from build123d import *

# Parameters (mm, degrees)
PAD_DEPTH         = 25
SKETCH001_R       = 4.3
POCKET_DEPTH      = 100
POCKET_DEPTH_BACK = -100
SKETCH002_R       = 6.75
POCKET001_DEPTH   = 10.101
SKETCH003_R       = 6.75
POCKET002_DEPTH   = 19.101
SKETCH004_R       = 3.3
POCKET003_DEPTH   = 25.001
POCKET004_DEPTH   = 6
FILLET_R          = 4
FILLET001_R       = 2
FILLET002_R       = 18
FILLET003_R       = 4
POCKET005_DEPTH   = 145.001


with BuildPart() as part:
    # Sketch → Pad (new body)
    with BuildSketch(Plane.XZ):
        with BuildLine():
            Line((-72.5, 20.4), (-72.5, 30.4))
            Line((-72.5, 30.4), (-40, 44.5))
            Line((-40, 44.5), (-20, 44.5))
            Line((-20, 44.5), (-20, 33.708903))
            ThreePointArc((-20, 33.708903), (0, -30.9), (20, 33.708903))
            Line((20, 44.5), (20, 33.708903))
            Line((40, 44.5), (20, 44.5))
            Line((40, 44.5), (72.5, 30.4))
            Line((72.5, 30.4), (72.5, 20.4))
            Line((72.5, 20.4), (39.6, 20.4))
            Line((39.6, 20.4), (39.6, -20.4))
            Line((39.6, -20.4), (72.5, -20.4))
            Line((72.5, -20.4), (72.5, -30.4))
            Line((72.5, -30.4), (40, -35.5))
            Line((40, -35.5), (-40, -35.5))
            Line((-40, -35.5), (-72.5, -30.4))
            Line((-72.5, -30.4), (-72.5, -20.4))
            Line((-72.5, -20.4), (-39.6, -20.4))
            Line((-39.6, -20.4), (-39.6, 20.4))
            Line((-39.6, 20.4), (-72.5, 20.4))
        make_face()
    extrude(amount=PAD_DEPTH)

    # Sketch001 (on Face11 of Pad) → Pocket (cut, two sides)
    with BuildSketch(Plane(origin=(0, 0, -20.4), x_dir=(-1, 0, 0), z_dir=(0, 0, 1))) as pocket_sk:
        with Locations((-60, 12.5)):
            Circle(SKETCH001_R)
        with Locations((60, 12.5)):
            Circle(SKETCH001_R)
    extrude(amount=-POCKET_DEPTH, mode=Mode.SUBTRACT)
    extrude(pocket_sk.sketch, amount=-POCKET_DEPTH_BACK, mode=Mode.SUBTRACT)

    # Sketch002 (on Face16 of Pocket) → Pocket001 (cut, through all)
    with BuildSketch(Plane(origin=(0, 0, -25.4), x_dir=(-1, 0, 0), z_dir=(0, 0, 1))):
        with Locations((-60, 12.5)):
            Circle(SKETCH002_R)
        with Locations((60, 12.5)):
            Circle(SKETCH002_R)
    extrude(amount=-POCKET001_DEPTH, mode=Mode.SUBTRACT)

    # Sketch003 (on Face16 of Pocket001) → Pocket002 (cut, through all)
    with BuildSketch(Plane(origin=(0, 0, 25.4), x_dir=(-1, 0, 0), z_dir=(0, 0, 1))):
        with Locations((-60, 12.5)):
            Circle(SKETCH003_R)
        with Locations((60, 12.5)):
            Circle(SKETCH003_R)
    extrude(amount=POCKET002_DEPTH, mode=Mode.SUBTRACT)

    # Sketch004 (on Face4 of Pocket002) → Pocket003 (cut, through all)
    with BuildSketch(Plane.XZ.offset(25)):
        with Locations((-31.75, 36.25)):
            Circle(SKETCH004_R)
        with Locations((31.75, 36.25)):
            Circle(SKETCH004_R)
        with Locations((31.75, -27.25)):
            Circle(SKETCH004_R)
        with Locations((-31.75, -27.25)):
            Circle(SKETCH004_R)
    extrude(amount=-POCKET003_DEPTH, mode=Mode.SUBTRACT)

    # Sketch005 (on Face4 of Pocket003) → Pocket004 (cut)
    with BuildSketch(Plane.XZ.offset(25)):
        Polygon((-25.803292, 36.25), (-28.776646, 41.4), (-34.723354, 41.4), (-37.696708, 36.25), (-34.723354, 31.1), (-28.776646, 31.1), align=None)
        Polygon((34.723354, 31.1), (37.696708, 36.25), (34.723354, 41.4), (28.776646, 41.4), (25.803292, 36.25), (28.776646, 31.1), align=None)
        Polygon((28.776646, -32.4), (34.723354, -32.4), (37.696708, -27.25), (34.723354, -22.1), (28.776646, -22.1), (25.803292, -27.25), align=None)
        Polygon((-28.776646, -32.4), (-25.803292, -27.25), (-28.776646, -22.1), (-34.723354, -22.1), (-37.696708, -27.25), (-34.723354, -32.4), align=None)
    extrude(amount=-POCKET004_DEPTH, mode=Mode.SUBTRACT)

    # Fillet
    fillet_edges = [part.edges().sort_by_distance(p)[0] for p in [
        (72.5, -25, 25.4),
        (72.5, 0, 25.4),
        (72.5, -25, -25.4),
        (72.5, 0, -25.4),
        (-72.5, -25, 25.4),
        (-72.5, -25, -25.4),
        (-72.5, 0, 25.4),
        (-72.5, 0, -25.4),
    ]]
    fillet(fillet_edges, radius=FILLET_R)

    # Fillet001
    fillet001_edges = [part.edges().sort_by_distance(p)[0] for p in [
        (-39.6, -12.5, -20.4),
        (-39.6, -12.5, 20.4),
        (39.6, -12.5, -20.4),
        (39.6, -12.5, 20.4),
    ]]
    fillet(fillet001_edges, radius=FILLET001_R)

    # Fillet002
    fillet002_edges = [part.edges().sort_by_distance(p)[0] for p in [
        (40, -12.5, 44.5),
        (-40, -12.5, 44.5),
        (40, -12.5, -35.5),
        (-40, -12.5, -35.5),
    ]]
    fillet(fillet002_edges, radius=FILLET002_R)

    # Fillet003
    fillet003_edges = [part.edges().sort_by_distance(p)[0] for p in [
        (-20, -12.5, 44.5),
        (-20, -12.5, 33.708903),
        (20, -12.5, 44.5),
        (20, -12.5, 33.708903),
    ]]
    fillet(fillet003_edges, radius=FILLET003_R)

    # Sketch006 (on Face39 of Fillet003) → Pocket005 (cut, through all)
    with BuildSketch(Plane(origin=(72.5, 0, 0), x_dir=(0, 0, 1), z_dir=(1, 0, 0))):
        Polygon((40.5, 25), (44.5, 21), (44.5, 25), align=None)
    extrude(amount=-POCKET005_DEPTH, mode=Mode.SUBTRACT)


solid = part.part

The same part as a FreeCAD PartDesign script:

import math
import FreeCAD as App
import Part
import Sketcher
from FreeCAD import Vector
Q = App.Units.Quantity


def edges_at(feature, points):
    """Names of the edges that pass closest to the given points."""
    edges = feature.Shape.Edges
    near = lambda p: min(range(len(edges)), key=lambda i: edges[i].distToShape(Part.Vertex(*p))[0])
    return sorted({f"Edge{near(p) + 1}" for p in points})


def add_polygon(sketch, points):
    """Adds a closed chain of lines whose ends are joined by coincident constraints."""
    first, n = sketch.GeometryCount, len(points)
    for a, b in zip(points, points[1:] + points[:1]):
        sketch.addGeometry(Part.LineSegment(App.Vector(*a, 0), App.Vector(*b, 0)), False)
    for i in range(n):
        sketch.addConstraint(Sketcher.Constraint("Coincident", first + i, 2, first + (i + 1) % n, 1))

doc = App.newDocument("Part")
params = doc.addObject("Spreadsheet::Sheet", "Params")
for row, (alias, value) in enumerate([
    ("sketch1_radius", "35.4 mm"),
    ("sketch1_width", "80 mm"),
    ("sketch1_width2", "20 mm"),
    ("sketch1_height", "10 mm"),
    ("sketch1_width3", "32.9 mm"),
    ("pad1_length", "25 mm"),
    ("sketch2_diameter", "8.6 mm"),
    ("sketch3_diameter", "13.5 mm"),
    ("sketch4_diameter", "13.5 mm"),
    ("sketch5_diameter", "6.6 mm"),
    ("pocket5_length", "6 mm"),
    ("fillet_radius", "4 mm"),
    ("fillet2_radius", "2 mm"),
    ("fillet3_radius", "18 mm"),
    ("fillet4_radius", "4 mm"),
    ("sketch7_width", "4 mm"),
], start=1):
    params.set(f"A{row}", alias)
    params.set(f"B{row}", "=" + value)
    params.setAlias(f"B{row}", alias)

body = doc.addObject("PartDesign::Body", "Body")

# Sketch on XZ plane
sketch1 = body.newObject("Sketcher::SketchObject", "Sketch")
sketch1.AttachmentSupport = (doc.getObject("XZ_Plane"), [""])
sketch1.MapMode = "FlatFace"
sketch1.addGeometry([
    Part.LineSegment(Vector(-72.5, 30.4, 0), Vector(-72.5, 20.4, 0)),  # 0
    Part.LineSegment(Vector(-72.5, 20.4, 0), Vector(-39.6, 20.4, 0)),  # 1
    Part.LineSegment(Vector(-39.6, 20.4, 0), Vector(-39.6, -20.4, 0)),  # 2
    Part.LineSegment(Vector(-39.6, -20.4, 0), Vector(-72.5, -20.4, 0)),  # 3
    Part.LineSegment(Vector(-72.5, -20.4, 0), Vector(-72.5, -30.4, 0)),  # 4
    Part.LineSegment(Vector(-72.5, -30.4, 0), Vector(-40, -35.5, 0)),  # 5
    Part.LineSegment(Vector(-40, -35.5, 0), Vector(40, -35.5, 0)),  # 6
    Part.LineSegment(Vector(40, -35.5, 0), Vector(72.5, -30.4, 0)),  # 7
    Part.LineSegment(Vector(72.5, -30.4, 0), Vector(72.5, -20.4, 0)),  # 8
    Part.LineSegment(Vector(72.5, -20.4, 0), Vector(39.6, -20.4, 0)),  # 9
    Part.LineSegment(Vector(39.6, -20.4, 0), Vector(39.6, 20.4, 0)),  # 10
    Part.LineSegment(Vector(39.6, 20.4, 0), Vector(72.5, 20.4, 0)),  # 11
    Part.LineSegment(Vector(72.5, 20.4, 0), Vector(72.5, 30.4, 0)),  # 12
    Part.LineSegment(Vector(72.5, 30.4, 0), Vector(40, 44.5, 0)),  # 13
    Part.LineSegment(Vector(40, 44.5, 0), Vector(20, 44.5, 0)),  # 14
    Part.LineSegment(Vector(20, 44.5, 0), Vector(20, 33.708903, 0)),  # 15
    Part.ArcOfCircle(Part.Circle(Vector(0, 4.5, 0), Vector(0, 0, 1), 35.4), math.radians(124.40033), math.radians(415.59967)),  # 16
    Part.LineSegment(Vector(-20, 33.708903, 0), Vector(-20, 44.5, 0)),  # 17
    Part.LineSegment(Vector(-20, 44.5, 0), Vector(-40, 44.5, 0)),  # 18
    Part.LineSegment(Vector(-40, 44.5, 0), Vector(-72.5, 30.4, 0)),  # 19
], False)
sketch1.addConstraint([
    Sketcher.Constraint("Coincident", 0, 2, 1, 1),
    Sketcher.Constraint("Coincident", 1, 2, 2, 1),
    Sketcher.Constraint("Coincident", 2, 2, 3, 1),
    Sketcher.Constraint("Coincident", 3, 2, 4, 1),
    Sketcher.Constraint("Coincident", 4, 2, 5, 1),
    Sketcher.Constraint("Coincident", 5, 2, 6, 1),
    Sketcher.Constraint("Coincident", 6, 2, 7, 1),
    Sketcher.Constraint("Coincident", 7, 2, 8, 1),
    Sketcher.Constraint("Coincident", 8, 2, 9, 1),
    Sketcher.Constraint("Coincident", 9, 2, 10, 1),
    Sketcher.Constraint("Coincident", 10, 2, 11, 1),
    Sketcher.Constraint("Coincident", 11, 2, 12, 1),
    Sketcher.Constraint("Coincident", 12, 2, 13, 1),
    Sketcher.Constraint("Coincident", 13, 2, 14, 1),
    Sketcher.Constraint("Coincident", 14, 2, 15, 1),
    Sketcher.Constraint("Coincident", 15, 2, 16, 2),
    Sketcher.Constraint("Coincident", 16, 1, 17, 1),
    Sketcher.Constraint("Coincident", 17, 2, 18, 1),
    Sketcher.Constraint("Coincident", 18, 2, 19, 1),
    Sketcher.Constraint("Coincident", 19, 2, 0, 1),
    Sketcher.Constraint("Vertical", 0),
    Sketcher.Constraint("Horizontal", 1),
    Sketcher.Constraint("Vertical", 2),
    Sketcher.Constraint("Horizontal", 3),
    Sketcher.Constraint("Vertical", 4),
    Sketcher.Constraint("Horizontal", 6),
    Sketcher.Constraint("Vertical", 8),
    Sketcher.Constraint("Horizontal", 9),
    Sketcher.Constraint("Vertical", 10),
    Sketcher.Constraint("Horizontal", 11),
    Sketcher.Constraint("Vertical", 12),
    Sketcher.Constraint("Horizontal", 14),
    Sketcher.Constraint("Vertical", 15),
    Sketcher.Constraint("Vertical", 17),
    Sketcher.Constraint("Horizontal", 18),
    Sketcher.Constraint("Symmetric", 0, 2, 8, 2, -1, 1),
    Sketcher.Constraint("Symmetric", 2, 2, 10, 2, -1, 1),
    Sketcher.Constraint("Symmetric", 4, 2, 12, 2, -1, 1),
    Sketcher.Constraint("Symmetric", 4, 2, 7, 2, -2),
    Sketcher.Constraint("Symmetric", 15, 2, 16, 1, -2),
    Sketcher.Constraint("Symmetric", 13, 2, 18, 2, -2),
    Sketcher.Constraint("Horizontal", 3, 2, 8, 2),
    Sketcher.Constraint("Horizontal", 12, 2, 19, 2),
    Sketcher.Constraint("Vertical", 6, 2, 13, 2),
    Sketcher.Constraint("Vertical", 5, 2, 18, 2),
    Sketcher.Constraint("Radius", 16, 35.4),
    Sketcher.Constraint("DistanceX", 6, 1, 6, 2, 80.0),
    Sketcher.Constraint("DistanceX", 14, 2, 14, 1, 20.0),
    Sketcher.Constraint("DistanceY", 0, 2, 0, 1, 10.0),
    Sketcher.Constraint("DistanceX", 1, 1, 1, 2, 32.9),
    Sketcher.Constraint("DistanceY", 2, 2, 2, 1, 40.8),
    Sketcher.Constraint("DistanceY", 5, 2, 16, 3, 40.0),
    Sketcher.Constraint("DistanceY", 16, 3, 13, 2, 40.0),
    Sketcher.Constraint("DistanceY", -1, 1, 16, 3, 4.5),
    Sketcher.Constraint("DistanceX", 0, 2, -1, 1, 72.5),
])
sketch1.setExpression("Constraints[45]", "Params.sketch1_radius")
sketch1.setExpression("Constraints[46]", "Params.sketch1_width")
sketch1.setExpression("Constraints[47]", "Params.sketch1_width2")
sketch1.setExpression("Constraints[48]", "Params.sketch1_height")
sketch1.setExpression("Constraints[49]", "Params.sketch1_width3")
pad1 = body.newObject("PartDesign::Pad", "Pad")
pad1.Profile = sketch1
pad1.setExpression("Length", "Params.pad1_length")

# Sketch on XY plane
sketch2 = body.newObject("Sketcher::SketchObject", "Sketch001")
sketch2.AttachmentSupport = (doc.getObject("XY_Plane"), [""])
sketch2.MapMode = "FlatFace"
sketch2.AttachmentOffset = App.Placement(Vector(0, 0, -20.4), App.Rotation())
sketch2.addGeometry([
    Part.Circle(Vector(60, -12.5, 0), Vector(0, 0, 1), 4.3),
    Part.Circle(Vector(-60, -12.5, 0), Vector(0, 0, 1), 4.3),
], False)
sketch2.addConstraint([
    Sketcher.Constraint("Equal", 0, 1),
    Sketcher.Constraint("Symmetric", 0, 3, 1, 3, -2),
    Sketcher.Constraint("Diameter", 0, 8.6),
    Sketcher.Constraint("DistanceX", -1, 1, 0, 3, 60.0),
    Sketcher.Constraint("DistanceY", 0, 3, -1, 1, 12.5),
])
sketch2.setExpression("Constraints[2]", "Params.sketch2_diameter")
pocket1 = body.newObject("PartDesign::Pocket", "Pocket")
pocket1.Profile = sketch2
pocket1.Type = "ThroughAll"
pocket1.Midplane = True

# Sketch on XY plane
sketch3 = body.newObject("Sketcher::SketchObject", "Sketch002")
sketch3.AttachmentSupport = (doc.getObject("XY_Plane"), [""])
sketch3.MapMode = "FlatFace"
sketch3.AttachmentOffset = App.Placement(Vector(0, 0, -25.4), App.Rotation())
sketch3.addGeometry([
    Part.Circle(Vector(60, -12.5, 0), Vector(0, 0, 1), 6.75),
    Part.Circle(Vector(-60, -12.5, 0), Vector(0, 0, 1), 6.75),
], False)
sketch3.addConstraint([
    Sketcher.Constraint("Equal", 0, 1),
    Sketcher.Constraint("Symmetric", 0, 3, 1, 3, -2),
    Sketcher.Constraint("Diameter", 0, 13.5),
    Sketcher.Constraint("DistanceX", -1, 1, 0, 3, 60.0),
    Sketcher.Constraint("DistanceY", 0, 3, -1, 1, 12.5),
])
sketch3.setExpression("Constraints[2]", "Params.sketch3_diameter")
pocket2 = body.newObject("PartDesign::Pocket", "Pocket001")
pocket2.Profile = sketch3
pocket2.Type = "ThroughAll"

# Sketch on XY plane
sketch4 = body.newObject("Sketcher::SketchObject", "Sketch003")
sketch4.AttachmentSupport = (doc.getObject("XY_Plane"), [""])
sketch4.MapMode = "FlatFace"
sketch4.AttachmentOffset = App.Placement(Vector(0, 0, 25.4), App.Rotation())
sketch4.addGeometry([
    Part.Circle(Vector(60, -12.5, 0), Vector(0, 0, 1), 6.75),
    Part.Circle(Vector(-60, -12.5, 0), Vector(0, 0, 1), 6.75),
], False)
sketch4.addConstraint([
    Sketcher.Constraint("Equal", 0, 1),
    Sketcher.Constraint("Symmetric", 0, 3, 1, 3, -2),
    Sketcher.Constraint("Diameter", 0, 13.5),
    Sketcher.Constraint("DistanceX", -1, 1, 0, 3, 60.0),
    Sketcher.Constraint("DistanceY", 0, 3, -1, 1, 12.5),
])
sketch4.setExpression("Constraints[2]", "Params.sketch4_diameter")
pocket3 = body.newObject("PartDesign::Pocket", "Pocket002")
pocket3.Profile = sketch4
pocket3.Type = "ThroughAll"
pocket3.Reversed = True

# Sketch on XZ plane
sketch5 = body.newObject("Sketcher::SketchObject", "Sketch004")
sketch5.AttachmentSupport = (doc.getObject("XZ_Plane"), [""])
sketch5.MapMode = "FlatFace"
sketch5.AttachmentOffset = App.Placement(Vector(0, 0, 25), App.Rotation())
sketch5.addGeometry([
    Part.Circle(Vector(-31.75, 36.25, 0), Vector(0, 0, 1), 3.3),
    Part.Circle(Vector(31.75, 36.25, 0), Vector(0, 0, 1), 3.3),
    Part.Circle(Vector(31.75, -27.25, 0), Vector(0, 0, 1), 3.3),
    Part.Circle(Vector(-31.75, -27.25, 0), Vector(0, 0, 1), 3.3),
], False)
sketch5.addConstraint([
    Sketcher.Constraint("Equal", 0, 1),
    Sketcher.Constraint("Equal", 1, 2),
    Sketcher.Constraint("Equal", 2, 3),
    Sketcher.Constraint("Symmetric", 0, 3, 1, 3, -2),
    Sketcher.Constraint("Symmetric", 2, 3, 3, 3, -2),
    Sketcher.Constraint("Vertical", 1, 3, 2, 3),
    Sketcher.Constraint("Diameter", 0, 6.6),
    Sketcher.Constraint("DistanceX", 0, 3, 1, 3, 63.5),
    Sketcher.Constraint("DistanceY", 2, 3, 1, 3, 63.5),
    Sketcher.Constraint("DistanceY", -1, 1, 0, 3, 36.25),
])
sketch5.setExpression("Constraints[6]", "Params.sketch5_diameter")
pocket4 = body.newObject("PartDesign::Pocket", "Pocket003")
pocket4.Profile = sketch5
pocket4.Type = "ThroughAll"

# Sketch on XZ plane
sketch6 = body.newObject("Sketcher::SketchObject", "Sketch005")
sketch6.AttachmentSupport = (doc.getObject("XZ_Plane"), [""])
sketch6.MapMode = "FlatFace"
sketch6.AttachmentOffset = App.Placement(Vector(0, 0, 25), App.Rotation())
add_polygon(sketch6, [(-25.803292, 36.25), (-28.776646, 41.4), (-34.723354, 41.4), (-37.696708, 36.25), (-34.723354, 31.1), (-28.776646, 31.1)])  # lines 0-5
add_polygon(sketch6, [(34.723354, 31.1), (37.696708, 36.25), (34.723354, 41.4), (28.776646, 41.4), (25.803292, 36.25), (28.776646, 31.1)])  # lines 6-11
add_polygon(sketch6, [(28.776646, -32.4), (34.723354, -32.4), (37.696708, -27.25), (34.723354, -22.1), (28.776646, -22.1), (25.803292, -27.25)])  # lines 12-17
add_polygon(sketch6, [(-28.776646, -32.4), (-25.803292, -27.25), (-28.776646, -22.1), (-34.723354, -22.1), (-37.696708, -27.25), (-34.723354, -32.4)])  # lines 18-23
sketch6.addConstraint([
    Sketcher.Constraint("Horizontal", 1),
    Sketcher.Constraint("Horizontal", 4),
    Sketcher.Constraint("Horizontal", 8),
    Sketcher.Constraint("Horizontal", 11),
    Sketcher.Constraint("Horizontal", 12),
    Sketcher.Constraint("Horizontal", 15),
    Sketcher.Constraint("Horizontal", 20),
    Sketcher.Constraint("Horizontal", 23),
    Sketcher.Constraint("Symmetric", 2, 2, 6, 2, -2),
    Sketcher.Constraint("Symmetric", 1, 2, 7, 2, -2),
    Sketcher.Constraint("Symmetric", 5, 2, 9, 2, -2),
    Sketcher.Constraint("Symmetric", 4, 2, 10, 2, -2),
    Sketcher.Constraint("Symmetric", 16, 2, 18, 2, -2),
    Sketcher.Constraint("Symmetric", 15, 2, 19, 2, -2),
    Sketcher.Constraint("Symmetric", 13, 2, 21, 2, -2),
    Sketcher.Constraint("Symmetric", 12, 2, 22, 2, -2),
    Sketcher.Constraint("Parallel", 0, 3),
    Sketcher.Constraint("Parallel", 2, 5),
    Sketcher.Constraint("Parallel", 5, 6),
    Sketcher.Constraint("Parallel", 3, 7),
    Sketcher.Constraint("Parallel", 6, 9),
    Sketcher.Constraint("Parallel", 9, 13),
    Sketcher.Constraint("Parallel", 10, 14),
    Sketcher.Constraint("Parallel", 13, 16),
    Sketcher.Constraint("Parallel", 14, 17),
    Sketcher.Constraint("Parallel", 16, 18),
    Sketcher.Constraint("Parallel", 18, 21),
    Sketcher.Constraint("Horizontal", 2, 2, 5, 2),
    Sketcher.Constraint("Horizontal", 13, 2, 16, 2),
    Sketcher.Constraint("Vertical", 1, 2, 3, 2),
    Sketcher.Constraint("Vertical", 11, 2, 12, 2),
    Sketcher.Constraint("Vertical", 6, 2, 13, 2),
    Sketcher.Constraint("Vertical", 12, 2, 14, 2),
    Sketcher.Constraint("Vertical", 10, 2, 15, 2),
    Sketcher.Constraint("Angle", 0, Q("120.000001 deg")),
    Sketcher.Constraint("DistanceY", -1, 1, 0, 2, 41.4),
    Sketcher.Constraint("DistanceY", -1, 1, 3, 2, 31.1),
    Sketcher.Constraint("DistanceY", 12, 2, -1, 1, 32.4),
    Sketcher.Constraint("DistanceX", 5, 2, 6, 2, 63.5),
    Sketcher.Constraint("DistanceX", 1, 2, 1, 1, 5.946708),
])
pocket5 = body.newObject("PartDesign::Pocket", "Pocket004")
pocket5.Profile = sketch6
pocket5.setExpression("Length", "Params.pocket5_length")
doc.recompute()

fillet = body.newObject("PartDesign::Fillet", "Fillet")
fillet.Base = (pocket5, edges_at(pocket5, [
    (72.5, -25, 25.4),
    (72.5, 0, 25.4),
    (72.5, -25, -25.4),
    (72.5, 0, -25.4),
    (-72.5, -25, 25.4),
    (-72.5, -25, -25.4),
    (-72.5, 0, 25.4),
    (-72.5, 0, -25.4),
]))
fillet.setExpression("Radius", "Params.fillet_radius")
doc.recompute()

fillet2 = body.newObject("PartDesign::Fillet", "Fillet001")
fillet2.Base = (fillet, edges_at(fillet, [
    (-39.6, -12.5, -20.4),
    (-39.6, -12.5, 20.4),
    (39.6, -12.5, -20.4),
    (39.6, -12.5, 20.4),
]))
fillet2.setExpression("Radius", "Params.fillet2_radius")
doc.recompute()

fillet3 = body.newObject("PartDesign::Fillet", "Fillet002")
fillet3.Base = (fillet2, edges_at(fillet2, [
    (40, -12.5, 44.5),
    (-40, -12.5, 44.5),
    (40, -12.5, -35.5),
    (-40, -12.5, -35.5),
]))
fillet3.setExpression("Radius", "Params.fillet3_radius")
doc.recompute()

fillet4 = body.newObject("PartDesign::Fillet", "Fillet003")
fillet4.Base = (fillet3, edges_at(fillet3, [
    (-20, -12.5, 44.5),
    (-20, -12.5, 33.709),
    (20, -12.5, 44.5),
    (20, -12.5, 33.709),
]))
fillet4.setExpression("Radius", "Params.fillet4_radius")

# Sketch on YZ plane
sketch7 = body.newObject("Sketcher::SketchObject", "Sketch006")
sketch7.AttachmentSupport = (doc.getObject("YZ_Plane"), [""])
sketch7.MapMode = "FlatFace"
sketch7.AttachmentOffset = App.Placement(Vector(0, 0, 72.5), App.Rotation())
add_polygon(sketch7, [(-25, 40.5), (-21, 44.5), (-25, 44.5)])  # lines 0-2
sketch7.addConstraint([
    Sketcher.Constraint("Horizontal", 1),
    Sketcher.Constraint("Vertical", 2),
    Sketcher.Constraint("Equal", 1, 2),
    Sketcher.Constraint("DistanceX", 1, 2, 1, 1, 4.0),
    Sketcher.Constraint("DistanceX", 0, 2, -1, 1, 21.0),
    Sketcher.Constraint("DistanceY", -1, 1, 0, 2, 44.5),
])
sketch7.setExpression("Constraints[6]", "Params.sketch7_width")
pocket6 = body.newObject("PartDesign::Pocket", "Pocket005")
pocket6.Profile = sketch7
pocket6.Type = "ThroughAll"

doc.recompute()
